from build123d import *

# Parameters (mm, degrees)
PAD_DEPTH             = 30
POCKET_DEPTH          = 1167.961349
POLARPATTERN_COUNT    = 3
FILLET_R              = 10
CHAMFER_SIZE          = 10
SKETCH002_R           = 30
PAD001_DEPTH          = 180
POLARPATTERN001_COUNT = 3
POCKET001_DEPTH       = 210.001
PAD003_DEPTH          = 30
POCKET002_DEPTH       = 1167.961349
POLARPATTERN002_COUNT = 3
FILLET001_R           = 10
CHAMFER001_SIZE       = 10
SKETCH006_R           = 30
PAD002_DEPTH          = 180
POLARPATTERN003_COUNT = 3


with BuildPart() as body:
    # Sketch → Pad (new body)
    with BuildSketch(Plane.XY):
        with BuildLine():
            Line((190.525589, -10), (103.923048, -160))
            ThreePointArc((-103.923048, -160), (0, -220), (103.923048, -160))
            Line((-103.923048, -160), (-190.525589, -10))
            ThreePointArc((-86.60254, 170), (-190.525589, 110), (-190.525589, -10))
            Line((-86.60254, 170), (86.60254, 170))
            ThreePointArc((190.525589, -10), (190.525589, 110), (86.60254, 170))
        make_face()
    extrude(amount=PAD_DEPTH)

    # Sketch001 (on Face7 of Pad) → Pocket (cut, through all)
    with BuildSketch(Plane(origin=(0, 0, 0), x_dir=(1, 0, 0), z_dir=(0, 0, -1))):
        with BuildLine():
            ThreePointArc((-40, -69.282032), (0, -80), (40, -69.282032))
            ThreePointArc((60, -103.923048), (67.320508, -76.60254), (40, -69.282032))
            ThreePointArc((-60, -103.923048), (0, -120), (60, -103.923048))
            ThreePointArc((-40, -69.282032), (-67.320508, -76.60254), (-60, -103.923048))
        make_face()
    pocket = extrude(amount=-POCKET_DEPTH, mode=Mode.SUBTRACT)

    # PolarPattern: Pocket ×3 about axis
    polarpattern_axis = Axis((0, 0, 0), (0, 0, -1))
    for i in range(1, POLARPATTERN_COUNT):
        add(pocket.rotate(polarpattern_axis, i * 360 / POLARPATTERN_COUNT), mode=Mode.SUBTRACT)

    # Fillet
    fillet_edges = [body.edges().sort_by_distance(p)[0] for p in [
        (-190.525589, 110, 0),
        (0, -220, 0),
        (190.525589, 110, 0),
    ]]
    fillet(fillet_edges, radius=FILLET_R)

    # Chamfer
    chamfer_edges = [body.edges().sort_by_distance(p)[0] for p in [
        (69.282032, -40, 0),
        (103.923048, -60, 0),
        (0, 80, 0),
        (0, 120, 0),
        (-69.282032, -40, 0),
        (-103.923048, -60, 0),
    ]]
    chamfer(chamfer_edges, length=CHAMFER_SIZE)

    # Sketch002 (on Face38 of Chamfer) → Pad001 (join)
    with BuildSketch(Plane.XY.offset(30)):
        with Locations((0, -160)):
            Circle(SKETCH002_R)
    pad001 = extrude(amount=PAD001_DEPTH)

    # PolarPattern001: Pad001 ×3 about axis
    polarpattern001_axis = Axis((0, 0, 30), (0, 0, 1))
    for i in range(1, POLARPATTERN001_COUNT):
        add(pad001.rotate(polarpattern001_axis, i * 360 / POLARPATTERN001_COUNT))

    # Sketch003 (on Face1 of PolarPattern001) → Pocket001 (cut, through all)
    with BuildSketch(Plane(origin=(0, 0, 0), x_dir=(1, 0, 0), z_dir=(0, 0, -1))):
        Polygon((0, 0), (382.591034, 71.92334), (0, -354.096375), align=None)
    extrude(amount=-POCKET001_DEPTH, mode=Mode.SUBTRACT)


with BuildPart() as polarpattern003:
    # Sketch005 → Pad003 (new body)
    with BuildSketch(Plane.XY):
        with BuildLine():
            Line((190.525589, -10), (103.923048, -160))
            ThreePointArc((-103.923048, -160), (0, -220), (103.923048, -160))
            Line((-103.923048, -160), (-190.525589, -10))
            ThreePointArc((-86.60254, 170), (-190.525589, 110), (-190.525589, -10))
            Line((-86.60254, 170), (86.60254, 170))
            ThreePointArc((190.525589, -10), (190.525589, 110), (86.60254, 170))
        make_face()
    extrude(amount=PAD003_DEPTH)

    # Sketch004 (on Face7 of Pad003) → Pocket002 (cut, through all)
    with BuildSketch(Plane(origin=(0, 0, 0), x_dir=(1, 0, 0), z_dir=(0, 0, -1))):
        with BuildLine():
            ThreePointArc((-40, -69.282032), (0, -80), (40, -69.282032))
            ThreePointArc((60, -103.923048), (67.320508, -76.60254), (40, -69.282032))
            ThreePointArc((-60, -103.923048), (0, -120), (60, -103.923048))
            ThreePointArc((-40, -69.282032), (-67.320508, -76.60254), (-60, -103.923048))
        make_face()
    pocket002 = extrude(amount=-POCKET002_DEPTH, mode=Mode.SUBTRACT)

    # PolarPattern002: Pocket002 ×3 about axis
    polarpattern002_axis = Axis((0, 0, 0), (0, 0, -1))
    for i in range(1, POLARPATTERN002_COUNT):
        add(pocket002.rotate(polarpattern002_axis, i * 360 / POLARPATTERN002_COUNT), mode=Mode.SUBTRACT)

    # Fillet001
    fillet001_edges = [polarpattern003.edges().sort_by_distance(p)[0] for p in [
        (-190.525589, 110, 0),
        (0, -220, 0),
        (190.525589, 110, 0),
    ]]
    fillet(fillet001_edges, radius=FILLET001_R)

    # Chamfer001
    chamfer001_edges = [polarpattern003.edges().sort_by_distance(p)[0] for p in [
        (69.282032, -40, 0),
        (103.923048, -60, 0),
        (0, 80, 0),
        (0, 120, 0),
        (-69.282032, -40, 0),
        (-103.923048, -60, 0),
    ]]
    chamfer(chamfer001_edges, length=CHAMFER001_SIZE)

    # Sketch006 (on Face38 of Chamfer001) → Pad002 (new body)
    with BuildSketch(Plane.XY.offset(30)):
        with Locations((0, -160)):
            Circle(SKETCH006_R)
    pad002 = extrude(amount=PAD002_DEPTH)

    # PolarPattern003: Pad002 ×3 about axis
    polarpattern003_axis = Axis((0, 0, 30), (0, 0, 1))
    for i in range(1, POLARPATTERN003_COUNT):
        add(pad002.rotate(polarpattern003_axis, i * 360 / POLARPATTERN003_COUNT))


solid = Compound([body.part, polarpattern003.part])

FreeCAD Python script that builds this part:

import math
import FreeCAD as App
import Part
import Sketcher

V = App.Vector
Q = App.Units.Quantity


def edges_at(feature, points):
    """Names of the edges that pass closest to the given points."""
    edges = feature.Shape.Edges
    near = lambda p: min(range(len(edges)), key=lambda i: edges[i].distToShape(Part.Vertex(*p))[0])
    return sorted({f"Edge{near(p) + 1}" for p in points})


def add_polygon(sketch, points):
    """Adds a closed chain of lines whose ends are joined by coincident constraints."""
    first, n = sketch.GeometryCount, len(points)
    for a, b in zip(points, points[1:] + points[:1]):
        sketch.addGeometry(Part.LineSegment(App.Vector(*a, 0), App.Vector(*b, 0)), False)
    for i in range(n):
        sketch.addConstraint(Sketcher.Constraint("Coincident", first + i, 2, first + (i + 1) % n, 1))

doc = App.newDocument("Part")
params = doc.addObject("Spreadsheet::Sheet", "Params")
for row, (alias, value) in enumerate([
    ("sketch1_radius", "120 mm"),
    ("pad1_length", "30 mm"),
    ("sketch2_radius", "79.999998 mm"),
    ("sketch2_radius2", "20 mm"),
    ("fillet_radius", "10 mm"),
    ("chamfer_size", "10 mm"),
    ("sketch3_diameter", "60 mm"),
    ("pad2_length", "180 mm"),
    ("sketch5_radius", "120 mm"),
    ("pad3_length", "30 mm"),
    ("sketch6_radius", "79.999998 mm"),
    ("sketch6_radius2", "20 mm"),
    ("fillet2_radius", "10 mm"),
    ("chamfer2_size", "10 mm"),
    ("sketch7_diameter", "60 mm"),
    ("pad4_length", "180 mm"),
], start=1):
    params.set(f"A{row}", alias)
    params.set(f"B{row}", "=" + value)
    params.setAlias(f"B{row}", alias)

body = doc.addObject("PartDesign::Body", "Body")

# Sketch on XY plane
sketch1 = body.newObject("Sketcher::SketchObject", "Sketch")
sketch1.AttachmentSupport = (doc.getObject("XY_Plane"), [""])
sketch1.MapMode = "FlatFace"
sketch1.addGeometry([
    Part.LineSegment(V(104, -160, 0), V(191, -10, 0)),  # 0
    Part.ArcOfCircle(Part.Circle(V(87, 50, 0), V(0, 0, 1), 120), math.radians(-30), math.radians(90)),  # 1
    Part.LineSegment(V(87, 170, 0), V(-87, 170, 0)),  # 2
    Part.ArcOfCircle(Part.Circle(V(-87, 50, 0), V(0, 0, 1), 120), math.radians(90), math.radians(210)),  # 3
    Part.LineSegment(V(-191, -10, 0), V(-104, -160, 0)),  # 4
    Part.ArcOfCircle(Part.Circle(V(0, -100, 0), V(0, 0, 1), 120), math.radians(-150), math.radians(-30)),  # 5
], False)
sketch1.addConstraint([
    Sketcher.Constraint("Tangent", 0, 2, 1, 1),
    Sketcher.Constraint("Tangent", 1, 2, 2, 1),
    Sketcher.Constraint("Tangent", 2, 2, 3, 1),
    Sketcher.Constraint("Tangent", 3, 2, 4, 1),
    Sketcher.Constraint("Tangent", 4, 2, 5, 1),
    Sketcher.Constraint("Tangent", 5, 2, 0, 1),
    Sketcher.Constraint("Horizontal", 2),
    Sketcher.Constraint("Equal", 1, 3),
    Sketcher.Constraint("Equal", 3, 5),
    Sketcher.Constraint("Symmetric", 0, 2, 3, 2, -2),
    Sketcher.Constraint("Radius", 1, Q("120 mm")),
    Sketcher.Constraint("Angle", 0, Q("60 deg")),
    Sketcher.Constraint("DistanceY", -1, 1, 1, 3, Q("50 mm")),
    Sketcher.Constraint("DistanceY", 5, 3, -1, 1, Q("100.000001 mm")),
])
sketch1.setExpression("Constraints[10]", "Params.sketch1_radius")
pad1 = body.newObject("PartDesign::Pad", "Pad")
pad1.Profile = sketch1
pad1.setExpression("Length", "Params.pad1_length")

# Sketch on XY plane
sketch2 = body.newObject("Sketcher::SketchObject", "Sketch001")
sketch2.AttachmentSupport = (doc.getObject("XY_Plane"), [""])
sketch2.MapMode = "FlatFace"
sketch2.addGeometry([
    Part.ArcOfCircle(Part.Circle(V(0, 0, 0), V(0, 0, 1), 80), math.radians(60), math.radians(120)),
    Part.ArcOfCircle(Part.Circle(V(-50, 87, 0), V(0, 0, 1), 20), math.radians(120), math.radians(300)),
    Part.ArcOfCircle(Part.Circle(V(0, 0, 0), V(0, 0, 1), 120), math.radians(60), math.radians(120)),
    Part.ArcOfCircle(Part.Circle(V(50, 87, 0), V(0, 0, 1), 20), math.radians(-120), math.radians(60)),
], False)
sketch2.addConstraint([
    Sketcher.Constraint("Tangent", 0, 2, 1, 2),
    Sketcher.Constraint("Tangent", 1, 1, 2, 2),
    Sketcher.Constraint("Tangent", 2, 1, 3, 2),
    Sketcher.Constraint("Tangent", 3, 1, 0, 1),
    Sketcher.Constraint("Coincident", 0, 3, -1, 1),
    Sketcher.Constraint("Coincident", 2, 3, -1, 1),
    Sketcher.Constraint("Horizontal", 1, 3, 3, 3),
    Sketcher.Constraint("Radius", 0, Q("79.999998 mm")),
    Sketcher.Constraint("Radius", 1, Q("20 mm")),
    Sketcher.Constraint("DistanceX", 1, 3, -1, 1, Q("50 mm")),
])
sketch2.setExpression("Constraints[7]", "Params.sketch2_radius")
sketch2.setExpression("Constraints[8]", "Params.sketch2_radius2")
pocket1 = body.newObject("PartDesign::Pocket", "Pocket")
pocket1.Profile = sketch2
pocket1.Type = "ThroughAll"
pocket1.Reversed = True
doc.recompute()

polarpattern = body.newObject("PartDesign::PolarPattern", "PolarPattern")
polarpattern.Originals = [pocket1]
polarpattern.Axis = (doc.getObject("Z_Axis"), [""])
polarpattern.Angle = 360
polarpattern.Occurrences = 3
body.Tip = polarpattern
doc.recompute()

fillet = body.newObject("PartDesign::Fillet", "Fillet")
fillet.Base = (polarpattern, edges_at(polarpattern, [(-190.526, 110, 0), (0, -220, 0), (190.526, 110, 0)]))
fillet.setExpression("Radius", "Params.fillet_radius")
doc.recompute()

chamfer = body.newObject("PartDesign::Chamfer", "Chamfer")
chamfer.Base = (fillet, edges_at(fillet, [
    (69.282, -40, 0),
    (103.923, -60, 0),
    (0, 80, 0),
    (0, 120, 0),
    (-69.282, -40, 0),
    (-103.923, -60, 0),
]))
chamfer.setExpression("Size", "Params.chamfer_size")

# Sketch on XY plane
sketch3 = body.newObject("Sketcher::SketchObject", "Sketch002")
sketch3.AttachmentSupport = (doc.getObject("XY_Plane"), [""])
sketch3.MapMode = "FlatFace"
sketch3.AttachmentOffset = App.Placement(V(0, 0, 30), App.Rotation())
sketch3.addGeometry(Part.Circle(V(0, -160, 0), V(0, 0, 1), 30), False)
sketch3.addConstraint([
    Sketcher.Constraint("PointOnObject", 0, 3, -2),
    Sketcher.Constraint("Diameter", 0, Q("60 mm")),
    Sketcher.Constraint("DistanceY", 0, 3, -1, 1, Q("160 mm")),
])
sketch3.setExpression("Constraints[1]", "Params.sketch3_diameter")
pad2 = body.newObject("PartDesign::Pad", "Pad001")
pad2.Profile = sketch3
pad2.setExpression("Length", "Params.pad2_length")
doc.recompute()

polarpattern2 = body.newObject("PartDesign::PolarPattern", "PolarPattern001")
polarpattern2.Originals = [pad2]
polarpattern2.Axis = (doc.getObject("Z_Axis"), [""])
polarpattern2.Angle = 360
polarpattern2.Occurrences = 3
body.Tip = polarpattern2

# Sketch on XY plane
sketch4 = body.newObject("Sketcher::SketchObject", "Sketch003")
sketch4.AttachmentSupport = (doc.getObject("XY_Plane"), [""])
sketch4.MapMode = "FlatFace"
add_polygon(sketch4, [(383, -72), (0, 0), (0, 354)])  # lines 0-2
sketch4.addConstraint([
    Sketcher.Constraint("Vertical", 1),
    Sketcher.Constraint("Coincident", 0, 2, -1, 1),
    Sketcher.Constraint("Distance", 2, Q("572.598198 mm")),
    Sketcher.Constraint("DistanceY", 1, 1, 1, 2, Q("354.096375 mm")),
    Sketcher.Constraint("DistanceY", 2, 2, -1, 1, Q("71.92334 mm")),
])
pocket2 = body.newObject("PartDesign::Pocket", "Pocket001")
pocket2.Profile = sketch4
pocket2.Type = "ThroughAll"
pocket2.Reversed = True
body2 = doc.addObject("PartDesign::Body", "Body001")

# Sketch on XY plane
sketch5 = body2.newObject("Sketcher::SketchObject", "Sketch004")
sketch5.AttachmentSupport = (doc.getObject("XY_Plane001"), [""])
sketch5.MapMode = "FlatFace"
sketch5.addGeometry([
    Part.LineSegment(V(104, -160, 0), V(191, -10, 0)),  # 0
    Part.ArcOfCircle(Part.Circle(V(87, 50, 0), V(0, 0, 1), 120), math.radians(-30), math.radians(90)),  # 1
    Part.LineSegment(V(87, 170, 0), V(-87, 170, 0)),  # 2
    Part.ArcOfCircle(Part.Circle(V(-87, 50, 0), V(0, 0, 1), 120), math.radians(90), math.radians(210)),  # 3
    Part.LineSegment(V(-191, -10, 0), V(-104, -160, 0)),  # 4
    Part.ArcOfCircle(Part.Circle(V(0, -100, 0), V(0, 0, 1), 120), math.radians(-150), math.radians(-30)),  # 5
], False)
sketch5.addConstraint([
    Sketcher.Constraint("Tangent", 0, 2, 1, 1),
    Sketcher.Constraint("Tangent", 1, 2, 2, 1),
    Sketcher.Constraint("Tangent", 2, 2, 3, 1),
    Sketcher.Constraint("Tangent", 3, 2, 4, 1),
    Sketcher.Constraint("Tangent", 4, 2, 5, 1),
    Sketcher.Constraint("Tangent", 5, 2, 0, 1),
    Sketcher.Constraint("Horizontal", 2),
    Sketcher.Constraint("Equal", 1, 3),
    Sketcher.Constraint("Equal", 3, 5),
    Sketcher.Constraint("Symmetric", 0, 2, 3, 2, -2),
    Sketcher.Constraint("Radius", 1, Q("120 mm")),
    Sketcher.Constraint("Angle", 0, Q("60 deg")),
    Sketcher.Constraint("DistanceY", -1, 1, 1, 3, Q("50 mm")),
    Sketcher.Constraint("DistanceY", 5, 3, -1, 1, Q("100.000001 mm")),
])
sketch5.setExpression("Constraints[10]", "Params.sketch5_radius")
pad3 = body2.newObject("PartDesign::Pad", "Pad002")
pad3.Profile = sketch5
pad3.setExpression("Length", "Params.pad3_length")

# Sketch on XY plane
sketch6 = body2.newObject("Sketcher::SketchObject", "Sketch005")
sketch6.AttachmentSupport = (doc.getObject("XY_Plane001"), [""])
sketch6.MapMode = "FlatFace"
sketch6.addGeometry([
    Part.ArcOfCircle(Part.Circle(V(0, 0, 0), V(0, 0, 1), 80), math.radians(60), math.radians(120)),
    Part.ArcOfCircle(Part.Circle(V(-50, 87, 0), V(0, 0, 1), 20), math.radians(120), math.radians(300)),
    Part.ArcOfCircle(Part.Circle(V(0, 0, 0), V(0, 0, 1), 120), math.radians(60), math.radians(120)),
    Part.ArcOfCircle(Part.Circle(V(50, 87, 0), V(0, 0, 1), 20), math.radians(-120), math.radians(60)),
], False)
sketch6.addConstraint([
    Sketcher.Constraint("Tangent", 0, 2, 1, 2),
    Sketcher.Constraint("Tangent", 1, 1, 2, 2),
    Sketcher.Constraint("Tangent", 2, 1, 3, 2),
    Sketcher.Constraint("Tangent", 3, 1, 0, 1),
    Sketcher.Constraint("Coincident", 0, 3, -1, 1),
    Sketcher.Constraint("Coincident", 2, 3, -1, 1),
    Sketcher.Constraint("Horizontal", 1, 3, 3, 3),
    Sketcher.Constraint("Radius", 0, Q("79.999998 mm")),
    Sketcher.Constraint("Radius", 1, Q("20 mm")),
    Sketcher.Constraint("DistanceX", 1, 3, -1, 1, Q("50 mm")),
])
sketch6.setExpression("Constraints[7]", "Params.sketch6_radius")
sketch6.setExpression("Constraints[8]", "Params.sketch6_radius2")
pocket3 = body2.newObject("PartDesign::Pocket", "Pocket002")
pocket3.Profile = sketch6
pocket3.Type = "ThroughAll"
pocket3.Reversed = True
doc.recompute()

polarpattern3 = body2.newObject("PartDesign::PolarPattern", "PolarPattern002")
polarpattern3.Originals = [pocket3]
polarpattern3.Axis = (doc.getObject("Z_Axis001"), [""])
polarpattern3.Angle = 360
polarpattern3.Occurrences = 3
body2.Tip = polarpattern3
doc.recompute()

fillet2 = body2.newObject("PartDesign::Fillet", "Fillet001")
fillet2.Base = (polarpattern3, edges_at(polarpattern3, [(-190.526, 110, 0), (0, -220, 0), (190.526, 110, 0)]))
fillet2.setExpression("Radius", "Params.fillet2_radius")
doc.recompute()

chamfer2 = body2.newObject("PartDesign::Chamfer", "Chamfer001")
chamfer2.Base = (fillet2, edges_at(fillet2, [
    (69.282, -40, 0),
    (103.923, -60, 0),
    (0, 80, 0),
    (0, 120, 0),
    (-69.282, -40, 0),
    (-103.923, -60, 0),
]))
chamfer2.setExpression("Size", "Params.chamfer2_size")

# Sketch on XY plane
sketch7 = body2.newObject("Sketcher::SketchObject", "Sketch006")
sketch7.AttachmentSupport = (doc.getObject("XY_Plane001"), [""])
sketch7.MapMode = "FlatFace"
sketch7.AttachmentOffset = App.Placement(V(0, 0, 30), App.Rotation())
sketch7.addGeometry(Part.Circle(V(0, -160, 0), V(0, 0, 1), 30), False)
sketch7.addConstraint([
    Sketcher.Constraint("PointOnObject", 0, 3, -2),
    Sketcher.Constraint("Diameter", 0, Q("60 mm")),
    Sketcher.Constraint("DistanceY", 0, 3, -1, 1, Q("160 mm")),
])
sketch7.setExpression("Constraints[1]", "Params.sketch7_diameter")
pad4 = body2.newObject("PartDesign::Pad", "Pad003")
pad4.Profile = sketch7
pad4.setExpression("Length", "Params.pad4_length")
doc.recompute()

polarpattern4 = body2.newObject("PartDesign::PolarPattern", "PolarPattern003")
polarpattern4.Originals = [pad4]
polarpattern4.Axis = (doc.getObject("Z_Axis001"), [""])
polarpattern4.Angle = 360
polarpattern4.Occurrences = 3
body2.Tip = polarpattern4

doc.recompute()
